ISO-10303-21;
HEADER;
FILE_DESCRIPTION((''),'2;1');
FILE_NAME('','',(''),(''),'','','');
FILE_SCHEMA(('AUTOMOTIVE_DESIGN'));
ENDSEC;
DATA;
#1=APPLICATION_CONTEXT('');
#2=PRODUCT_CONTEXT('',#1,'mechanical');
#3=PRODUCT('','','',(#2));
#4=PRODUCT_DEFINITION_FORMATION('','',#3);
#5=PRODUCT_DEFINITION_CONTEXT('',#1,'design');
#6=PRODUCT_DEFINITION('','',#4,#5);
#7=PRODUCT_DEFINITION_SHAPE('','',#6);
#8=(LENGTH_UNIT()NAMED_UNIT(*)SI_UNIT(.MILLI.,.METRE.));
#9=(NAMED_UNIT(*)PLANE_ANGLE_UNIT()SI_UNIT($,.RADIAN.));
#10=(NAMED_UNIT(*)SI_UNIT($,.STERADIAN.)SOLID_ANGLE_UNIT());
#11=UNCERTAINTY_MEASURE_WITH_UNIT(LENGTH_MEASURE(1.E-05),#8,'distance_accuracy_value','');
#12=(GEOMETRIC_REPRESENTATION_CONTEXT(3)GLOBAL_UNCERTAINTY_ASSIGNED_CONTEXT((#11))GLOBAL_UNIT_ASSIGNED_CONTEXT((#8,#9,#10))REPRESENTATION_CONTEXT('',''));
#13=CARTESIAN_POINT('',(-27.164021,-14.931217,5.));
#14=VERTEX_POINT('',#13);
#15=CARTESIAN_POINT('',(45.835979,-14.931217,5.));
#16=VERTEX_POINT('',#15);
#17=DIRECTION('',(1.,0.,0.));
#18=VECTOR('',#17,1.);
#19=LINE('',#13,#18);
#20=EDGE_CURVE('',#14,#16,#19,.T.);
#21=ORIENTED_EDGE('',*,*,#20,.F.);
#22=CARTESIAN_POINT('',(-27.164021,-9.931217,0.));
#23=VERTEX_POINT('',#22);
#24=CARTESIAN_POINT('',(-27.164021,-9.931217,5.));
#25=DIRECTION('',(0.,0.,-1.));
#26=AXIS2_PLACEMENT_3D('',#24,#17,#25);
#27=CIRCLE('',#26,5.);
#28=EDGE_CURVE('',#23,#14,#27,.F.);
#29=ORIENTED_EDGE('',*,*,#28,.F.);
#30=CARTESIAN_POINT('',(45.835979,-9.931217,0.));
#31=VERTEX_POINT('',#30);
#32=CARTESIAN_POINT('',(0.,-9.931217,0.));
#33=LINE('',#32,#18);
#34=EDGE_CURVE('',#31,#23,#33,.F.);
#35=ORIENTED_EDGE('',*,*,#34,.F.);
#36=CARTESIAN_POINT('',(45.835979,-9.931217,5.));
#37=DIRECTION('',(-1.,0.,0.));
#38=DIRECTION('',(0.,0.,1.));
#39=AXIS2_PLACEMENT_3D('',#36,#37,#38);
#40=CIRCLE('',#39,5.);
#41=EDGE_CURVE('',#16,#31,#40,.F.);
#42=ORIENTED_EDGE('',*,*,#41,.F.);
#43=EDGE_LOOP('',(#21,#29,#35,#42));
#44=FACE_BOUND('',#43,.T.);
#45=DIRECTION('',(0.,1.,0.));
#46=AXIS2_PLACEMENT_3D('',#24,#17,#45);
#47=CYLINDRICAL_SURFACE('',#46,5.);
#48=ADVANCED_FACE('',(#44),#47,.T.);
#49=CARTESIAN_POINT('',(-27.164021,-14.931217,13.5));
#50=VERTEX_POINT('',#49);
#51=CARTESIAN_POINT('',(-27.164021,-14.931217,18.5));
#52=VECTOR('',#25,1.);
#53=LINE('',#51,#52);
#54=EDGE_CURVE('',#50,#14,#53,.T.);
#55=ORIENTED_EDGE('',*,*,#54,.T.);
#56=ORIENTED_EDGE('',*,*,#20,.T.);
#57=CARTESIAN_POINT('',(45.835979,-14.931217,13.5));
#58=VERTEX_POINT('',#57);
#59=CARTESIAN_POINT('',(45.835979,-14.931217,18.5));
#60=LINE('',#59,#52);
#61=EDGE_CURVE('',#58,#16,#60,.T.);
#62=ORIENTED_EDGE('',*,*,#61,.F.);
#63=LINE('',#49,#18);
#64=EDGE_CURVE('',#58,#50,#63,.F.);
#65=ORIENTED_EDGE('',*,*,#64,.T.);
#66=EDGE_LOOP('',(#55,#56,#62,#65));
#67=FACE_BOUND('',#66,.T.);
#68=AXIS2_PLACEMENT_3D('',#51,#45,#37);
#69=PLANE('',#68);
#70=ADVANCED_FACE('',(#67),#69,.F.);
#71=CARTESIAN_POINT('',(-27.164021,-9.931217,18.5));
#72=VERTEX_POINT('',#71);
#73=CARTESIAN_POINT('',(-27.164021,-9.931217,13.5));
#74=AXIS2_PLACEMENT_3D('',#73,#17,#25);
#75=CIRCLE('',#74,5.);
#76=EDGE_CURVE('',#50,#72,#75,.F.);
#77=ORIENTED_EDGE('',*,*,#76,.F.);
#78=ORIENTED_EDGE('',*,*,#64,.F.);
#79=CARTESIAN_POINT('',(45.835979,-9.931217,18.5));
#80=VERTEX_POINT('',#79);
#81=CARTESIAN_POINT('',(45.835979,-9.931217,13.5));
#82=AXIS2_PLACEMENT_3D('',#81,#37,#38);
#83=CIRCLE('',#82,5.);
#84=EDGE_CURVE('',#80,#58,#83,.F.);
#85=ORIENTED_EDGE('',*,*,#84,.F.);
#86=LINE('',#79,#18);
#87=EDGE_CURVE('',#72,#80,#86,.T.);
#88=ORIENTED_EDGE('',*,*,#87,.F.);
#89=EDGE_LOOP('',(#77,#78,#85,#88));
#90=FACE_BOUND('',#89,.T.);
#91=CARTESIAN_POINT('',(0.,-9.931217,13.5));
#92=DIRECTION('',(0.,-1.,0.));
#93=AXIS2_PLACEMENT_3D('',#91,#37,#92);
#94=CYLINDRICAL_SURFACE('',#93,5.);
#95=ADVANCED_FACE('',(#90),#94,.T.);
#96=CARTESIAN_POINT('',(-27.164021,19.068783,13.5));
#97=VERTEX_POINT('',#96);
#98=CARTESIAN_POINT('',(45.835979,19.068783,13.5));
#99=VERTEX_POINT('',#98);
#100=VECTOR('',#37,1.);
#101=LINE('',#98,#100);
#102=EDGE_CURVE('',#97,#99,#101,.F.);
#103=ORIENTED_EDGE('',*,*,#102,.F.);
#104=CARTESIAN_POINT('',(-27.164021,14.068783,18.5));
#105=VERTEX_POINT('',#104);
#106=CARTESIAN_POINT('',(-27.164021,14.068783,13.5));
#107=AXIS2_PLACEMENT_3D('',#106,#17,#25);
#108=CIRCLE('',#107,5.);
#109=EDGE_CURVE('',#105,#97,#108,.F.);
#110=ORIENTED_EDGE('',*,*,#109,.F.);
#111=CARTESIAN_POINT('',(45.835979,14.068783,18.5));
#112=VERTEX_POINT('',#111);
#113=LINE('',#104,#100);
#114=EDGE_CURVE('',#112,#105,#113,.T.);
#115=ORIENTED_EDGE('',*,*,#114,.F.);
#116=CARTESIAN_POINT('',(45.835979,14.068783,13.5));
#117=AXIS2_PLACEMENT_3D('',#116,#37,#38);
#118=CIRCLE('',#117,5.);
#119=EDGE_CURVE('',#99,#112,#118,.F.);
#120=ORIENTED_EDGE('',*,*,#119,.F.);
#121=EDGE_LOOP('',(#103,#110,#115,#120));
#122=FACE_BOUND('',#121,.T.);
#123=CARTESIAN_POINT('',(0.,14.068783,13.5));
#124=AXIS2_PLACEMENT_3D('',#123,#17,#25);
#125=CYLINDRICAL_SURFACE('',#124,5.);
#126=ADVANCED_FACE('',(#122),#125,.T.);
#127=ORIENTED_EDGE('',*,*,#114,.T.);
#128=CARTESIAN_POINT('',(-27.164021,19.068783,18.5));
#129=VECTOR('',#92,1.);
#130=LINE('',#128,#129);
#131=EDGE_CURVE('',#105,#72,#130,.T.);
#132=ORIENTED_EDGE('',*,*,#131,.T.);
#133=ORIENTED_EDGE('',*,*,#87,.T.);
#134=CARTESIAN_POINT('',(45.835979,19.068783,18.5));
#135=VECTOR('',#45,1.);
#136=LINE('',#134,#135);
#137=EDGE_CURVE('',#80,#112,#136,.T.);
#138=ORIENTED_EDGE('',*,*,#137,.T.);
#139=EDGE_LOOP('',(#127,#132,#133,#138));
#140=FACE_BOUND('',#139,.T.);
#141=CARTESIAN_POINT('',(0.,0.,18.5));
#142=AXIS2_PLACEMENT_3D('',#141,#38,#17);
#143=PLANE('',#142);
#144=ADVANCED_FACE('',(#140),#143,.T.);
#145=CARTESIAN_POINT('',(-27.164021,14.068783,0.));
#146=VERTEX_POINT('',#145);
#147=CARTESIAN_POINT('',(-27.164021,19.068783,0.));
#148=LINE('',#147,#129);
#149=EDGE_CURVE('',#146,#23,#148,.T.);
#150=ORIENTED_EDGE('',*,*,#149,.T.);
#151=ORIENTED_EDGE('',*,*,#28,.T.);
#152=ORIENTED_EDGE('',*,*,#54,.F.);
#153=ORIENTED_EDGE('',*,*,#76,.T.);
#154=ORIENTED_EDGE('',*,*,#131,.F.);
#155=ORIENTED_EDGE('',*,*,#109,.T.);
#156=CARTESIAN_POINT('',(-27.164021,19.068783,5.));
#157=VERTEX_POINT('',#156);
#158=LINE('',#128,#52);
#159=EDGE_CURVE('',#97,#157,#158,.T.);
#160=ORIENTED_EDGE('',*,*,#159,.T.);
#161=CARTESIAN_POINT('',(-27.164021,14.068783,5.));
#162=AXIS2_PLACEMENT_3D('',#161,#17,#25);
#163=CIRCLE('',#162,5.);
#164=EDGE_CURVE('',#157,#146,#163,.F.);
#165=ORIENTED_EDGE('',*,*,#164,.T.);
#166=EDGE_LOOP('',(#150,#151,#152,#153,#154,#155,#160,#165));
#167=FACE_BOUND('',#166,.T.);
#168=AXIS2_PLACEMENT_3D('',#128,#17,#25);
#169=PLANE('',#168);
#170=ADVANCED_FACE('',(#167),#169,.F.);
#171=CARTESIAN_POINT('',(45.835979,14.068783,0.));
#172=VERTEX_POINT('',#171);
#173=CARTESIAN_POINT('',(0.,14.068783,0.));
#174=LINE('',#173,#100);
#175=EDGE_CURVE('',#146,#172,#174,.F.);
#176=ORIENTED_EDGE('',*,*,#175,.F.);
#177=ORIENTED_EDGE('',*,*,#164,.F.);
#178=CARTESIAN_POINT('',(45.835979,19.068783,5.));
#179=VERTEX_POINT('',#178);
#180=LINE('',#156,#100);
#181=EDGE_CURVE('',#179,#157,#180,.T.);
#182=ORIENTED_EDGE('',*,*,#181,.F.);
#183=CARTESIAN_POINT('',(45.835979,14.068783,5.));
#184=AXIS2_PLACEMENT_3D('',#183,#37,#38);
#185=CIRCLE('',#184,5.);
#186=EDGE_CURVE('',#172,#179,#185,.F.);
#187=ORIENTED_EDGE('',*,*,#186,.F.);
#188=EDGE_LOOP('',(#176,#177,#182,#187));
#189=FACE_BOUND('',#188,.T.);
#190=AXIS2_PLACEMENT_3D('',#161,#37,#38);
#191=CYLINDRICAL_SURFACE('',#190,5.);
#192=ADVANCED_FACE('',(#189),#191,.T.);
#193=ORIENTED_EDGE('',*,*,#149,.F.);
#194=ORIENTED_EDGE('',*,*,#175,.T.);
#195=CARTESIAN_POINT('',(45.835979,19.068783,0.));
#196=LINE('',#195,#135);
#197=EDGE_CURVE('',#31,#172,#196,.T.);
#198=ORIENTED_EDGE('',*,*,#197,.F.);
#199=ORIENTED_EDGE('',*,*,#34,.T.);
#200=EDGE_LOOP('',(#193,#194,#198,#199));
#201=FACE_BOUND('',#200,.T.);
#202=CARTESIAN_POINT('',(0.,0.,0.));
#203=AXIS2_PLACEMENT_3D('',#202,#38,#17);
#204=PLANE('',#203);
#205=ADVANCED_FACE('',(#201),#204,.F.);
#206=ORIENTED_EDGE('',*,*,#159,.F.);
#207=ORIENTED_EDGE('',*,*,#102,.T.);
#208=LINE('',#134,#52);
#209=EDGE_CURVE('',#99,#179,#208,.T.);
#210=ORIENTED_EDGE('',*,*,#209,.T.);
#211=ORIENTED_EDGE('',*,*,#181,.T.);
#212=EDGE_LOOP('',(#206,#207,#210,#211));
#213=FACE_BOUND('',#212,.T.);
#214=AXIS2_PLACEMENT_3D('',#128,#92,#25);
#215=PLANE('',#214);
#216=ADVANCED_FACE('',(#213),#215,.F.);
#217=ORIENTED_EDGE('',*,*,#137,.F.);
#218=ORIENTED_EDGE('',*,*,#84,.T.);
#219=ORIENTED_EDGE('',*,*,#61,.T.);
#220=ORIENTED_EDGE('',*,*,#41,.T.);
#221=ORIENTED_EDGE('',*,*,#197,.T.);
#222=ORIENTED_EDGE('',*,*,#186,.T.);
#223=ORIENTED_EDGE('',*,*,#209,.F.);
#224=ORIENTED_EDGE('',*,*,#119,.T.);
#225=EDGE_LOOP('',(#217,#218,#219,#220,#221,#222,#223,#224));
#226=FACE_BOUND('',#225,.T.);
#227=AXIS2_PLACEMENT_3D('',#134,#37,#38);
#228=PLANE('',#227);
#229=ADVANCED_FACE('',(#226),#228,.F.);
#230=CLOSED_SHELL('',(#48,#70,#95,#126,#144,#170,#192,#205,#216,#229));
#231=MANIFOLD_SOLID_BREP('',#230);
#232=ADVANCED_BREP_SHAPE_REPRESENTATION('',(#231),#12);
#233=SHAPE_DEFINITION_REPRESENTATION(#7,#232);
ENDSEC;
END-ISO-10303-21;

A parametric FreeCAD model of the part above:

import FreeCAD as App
import Part
import Sketcher

V = App.Vector
Q = App.Units.Quantity


def edges_at(feature, points):
    """Names of the edges that pass closest to the given points."""
    edges = feature.Shape.Edges
    near = lambda p: min(range(len(edges)), key=lambda i: edges[i].distToShape(Part.Vertex(*p))[0])
    return sorted({f"Edge{near(p) + 1}" for p in points})


def add_polygon(sketch, points):
    """Adds a closed chain of lines whose ends are joined by coincident constraints."""
    first, n = sketch.GeometryCount, len(points)
    for a, b in zip(points, points[1:] + points[:1]):
        sketch.addGeometry(Part.LineSegment(App.Vector(*a, 0), App.Vector(*b, 0)), False)
    for i in range(n):
        sketch.addConstraint(Sketcher.Constraint("Coincident", first + i, 2, first + (i + 1) % n, 1))

doc = App.newDocument("Part")
body = doc.addObject("PartDesign::Body", "Body")

sketch1 = doc.addObject("Sketcher::SketchObject", "Sketch")
body.addObject(sketch1)
sketch1.AttachmentSupport = (doc.XY_Plane, [""])
sketch1.MapMode = "FlatFace"
add_polygon(sketch1, [(-27.164021, 19.068783), (-27.164021, -14.931217), (45.835979, -14.931217), (45.835979, 19.068783)])
sketch1.addConstraint([
    Sketcher.Constraint("Vertical", 0),
    Sketcher.Constraint("Horizontal", 1),
    Sketcher.Constraint("Vertical", 2),
    Sketcher.Constraint("Horizontal", 3),
    Sketcher.Constraint("DistanceX", 1, 1, 1, 2, Q("73 mm")),
    Sketcher.Constraint("DistanceY", 0, 2, 0, 1, Q("34 mm")),
    Sketcher.Constraint("DistanceX", 0, 2, -1, 1, Q("27.164021 mm")),
    Sketcher.Constraint("DistanceY", 0, 2, -1, 1, Q("14.931217 mm")),
])
pad1 = doc.addObject("PartDesign::Pad", "Pad")
body.addObject(pad1)
pad1.Profile = sketch1
pad1.Length = 18.5
doc.recompute()

fillet = doc.addObject("PartDesign::Fillet", "Fillet")
body.addObject(fillet)
fillet.Base = (pad1, edges_at(pad1, [
    (9.336, 19.069, 18.5),
    (9.336, 19.069, 0),
    (9.336, -14.931, 0),
    (9.336, -14.931, 18.5),
]))
fillet.Radius = 5

doc.recompute()
